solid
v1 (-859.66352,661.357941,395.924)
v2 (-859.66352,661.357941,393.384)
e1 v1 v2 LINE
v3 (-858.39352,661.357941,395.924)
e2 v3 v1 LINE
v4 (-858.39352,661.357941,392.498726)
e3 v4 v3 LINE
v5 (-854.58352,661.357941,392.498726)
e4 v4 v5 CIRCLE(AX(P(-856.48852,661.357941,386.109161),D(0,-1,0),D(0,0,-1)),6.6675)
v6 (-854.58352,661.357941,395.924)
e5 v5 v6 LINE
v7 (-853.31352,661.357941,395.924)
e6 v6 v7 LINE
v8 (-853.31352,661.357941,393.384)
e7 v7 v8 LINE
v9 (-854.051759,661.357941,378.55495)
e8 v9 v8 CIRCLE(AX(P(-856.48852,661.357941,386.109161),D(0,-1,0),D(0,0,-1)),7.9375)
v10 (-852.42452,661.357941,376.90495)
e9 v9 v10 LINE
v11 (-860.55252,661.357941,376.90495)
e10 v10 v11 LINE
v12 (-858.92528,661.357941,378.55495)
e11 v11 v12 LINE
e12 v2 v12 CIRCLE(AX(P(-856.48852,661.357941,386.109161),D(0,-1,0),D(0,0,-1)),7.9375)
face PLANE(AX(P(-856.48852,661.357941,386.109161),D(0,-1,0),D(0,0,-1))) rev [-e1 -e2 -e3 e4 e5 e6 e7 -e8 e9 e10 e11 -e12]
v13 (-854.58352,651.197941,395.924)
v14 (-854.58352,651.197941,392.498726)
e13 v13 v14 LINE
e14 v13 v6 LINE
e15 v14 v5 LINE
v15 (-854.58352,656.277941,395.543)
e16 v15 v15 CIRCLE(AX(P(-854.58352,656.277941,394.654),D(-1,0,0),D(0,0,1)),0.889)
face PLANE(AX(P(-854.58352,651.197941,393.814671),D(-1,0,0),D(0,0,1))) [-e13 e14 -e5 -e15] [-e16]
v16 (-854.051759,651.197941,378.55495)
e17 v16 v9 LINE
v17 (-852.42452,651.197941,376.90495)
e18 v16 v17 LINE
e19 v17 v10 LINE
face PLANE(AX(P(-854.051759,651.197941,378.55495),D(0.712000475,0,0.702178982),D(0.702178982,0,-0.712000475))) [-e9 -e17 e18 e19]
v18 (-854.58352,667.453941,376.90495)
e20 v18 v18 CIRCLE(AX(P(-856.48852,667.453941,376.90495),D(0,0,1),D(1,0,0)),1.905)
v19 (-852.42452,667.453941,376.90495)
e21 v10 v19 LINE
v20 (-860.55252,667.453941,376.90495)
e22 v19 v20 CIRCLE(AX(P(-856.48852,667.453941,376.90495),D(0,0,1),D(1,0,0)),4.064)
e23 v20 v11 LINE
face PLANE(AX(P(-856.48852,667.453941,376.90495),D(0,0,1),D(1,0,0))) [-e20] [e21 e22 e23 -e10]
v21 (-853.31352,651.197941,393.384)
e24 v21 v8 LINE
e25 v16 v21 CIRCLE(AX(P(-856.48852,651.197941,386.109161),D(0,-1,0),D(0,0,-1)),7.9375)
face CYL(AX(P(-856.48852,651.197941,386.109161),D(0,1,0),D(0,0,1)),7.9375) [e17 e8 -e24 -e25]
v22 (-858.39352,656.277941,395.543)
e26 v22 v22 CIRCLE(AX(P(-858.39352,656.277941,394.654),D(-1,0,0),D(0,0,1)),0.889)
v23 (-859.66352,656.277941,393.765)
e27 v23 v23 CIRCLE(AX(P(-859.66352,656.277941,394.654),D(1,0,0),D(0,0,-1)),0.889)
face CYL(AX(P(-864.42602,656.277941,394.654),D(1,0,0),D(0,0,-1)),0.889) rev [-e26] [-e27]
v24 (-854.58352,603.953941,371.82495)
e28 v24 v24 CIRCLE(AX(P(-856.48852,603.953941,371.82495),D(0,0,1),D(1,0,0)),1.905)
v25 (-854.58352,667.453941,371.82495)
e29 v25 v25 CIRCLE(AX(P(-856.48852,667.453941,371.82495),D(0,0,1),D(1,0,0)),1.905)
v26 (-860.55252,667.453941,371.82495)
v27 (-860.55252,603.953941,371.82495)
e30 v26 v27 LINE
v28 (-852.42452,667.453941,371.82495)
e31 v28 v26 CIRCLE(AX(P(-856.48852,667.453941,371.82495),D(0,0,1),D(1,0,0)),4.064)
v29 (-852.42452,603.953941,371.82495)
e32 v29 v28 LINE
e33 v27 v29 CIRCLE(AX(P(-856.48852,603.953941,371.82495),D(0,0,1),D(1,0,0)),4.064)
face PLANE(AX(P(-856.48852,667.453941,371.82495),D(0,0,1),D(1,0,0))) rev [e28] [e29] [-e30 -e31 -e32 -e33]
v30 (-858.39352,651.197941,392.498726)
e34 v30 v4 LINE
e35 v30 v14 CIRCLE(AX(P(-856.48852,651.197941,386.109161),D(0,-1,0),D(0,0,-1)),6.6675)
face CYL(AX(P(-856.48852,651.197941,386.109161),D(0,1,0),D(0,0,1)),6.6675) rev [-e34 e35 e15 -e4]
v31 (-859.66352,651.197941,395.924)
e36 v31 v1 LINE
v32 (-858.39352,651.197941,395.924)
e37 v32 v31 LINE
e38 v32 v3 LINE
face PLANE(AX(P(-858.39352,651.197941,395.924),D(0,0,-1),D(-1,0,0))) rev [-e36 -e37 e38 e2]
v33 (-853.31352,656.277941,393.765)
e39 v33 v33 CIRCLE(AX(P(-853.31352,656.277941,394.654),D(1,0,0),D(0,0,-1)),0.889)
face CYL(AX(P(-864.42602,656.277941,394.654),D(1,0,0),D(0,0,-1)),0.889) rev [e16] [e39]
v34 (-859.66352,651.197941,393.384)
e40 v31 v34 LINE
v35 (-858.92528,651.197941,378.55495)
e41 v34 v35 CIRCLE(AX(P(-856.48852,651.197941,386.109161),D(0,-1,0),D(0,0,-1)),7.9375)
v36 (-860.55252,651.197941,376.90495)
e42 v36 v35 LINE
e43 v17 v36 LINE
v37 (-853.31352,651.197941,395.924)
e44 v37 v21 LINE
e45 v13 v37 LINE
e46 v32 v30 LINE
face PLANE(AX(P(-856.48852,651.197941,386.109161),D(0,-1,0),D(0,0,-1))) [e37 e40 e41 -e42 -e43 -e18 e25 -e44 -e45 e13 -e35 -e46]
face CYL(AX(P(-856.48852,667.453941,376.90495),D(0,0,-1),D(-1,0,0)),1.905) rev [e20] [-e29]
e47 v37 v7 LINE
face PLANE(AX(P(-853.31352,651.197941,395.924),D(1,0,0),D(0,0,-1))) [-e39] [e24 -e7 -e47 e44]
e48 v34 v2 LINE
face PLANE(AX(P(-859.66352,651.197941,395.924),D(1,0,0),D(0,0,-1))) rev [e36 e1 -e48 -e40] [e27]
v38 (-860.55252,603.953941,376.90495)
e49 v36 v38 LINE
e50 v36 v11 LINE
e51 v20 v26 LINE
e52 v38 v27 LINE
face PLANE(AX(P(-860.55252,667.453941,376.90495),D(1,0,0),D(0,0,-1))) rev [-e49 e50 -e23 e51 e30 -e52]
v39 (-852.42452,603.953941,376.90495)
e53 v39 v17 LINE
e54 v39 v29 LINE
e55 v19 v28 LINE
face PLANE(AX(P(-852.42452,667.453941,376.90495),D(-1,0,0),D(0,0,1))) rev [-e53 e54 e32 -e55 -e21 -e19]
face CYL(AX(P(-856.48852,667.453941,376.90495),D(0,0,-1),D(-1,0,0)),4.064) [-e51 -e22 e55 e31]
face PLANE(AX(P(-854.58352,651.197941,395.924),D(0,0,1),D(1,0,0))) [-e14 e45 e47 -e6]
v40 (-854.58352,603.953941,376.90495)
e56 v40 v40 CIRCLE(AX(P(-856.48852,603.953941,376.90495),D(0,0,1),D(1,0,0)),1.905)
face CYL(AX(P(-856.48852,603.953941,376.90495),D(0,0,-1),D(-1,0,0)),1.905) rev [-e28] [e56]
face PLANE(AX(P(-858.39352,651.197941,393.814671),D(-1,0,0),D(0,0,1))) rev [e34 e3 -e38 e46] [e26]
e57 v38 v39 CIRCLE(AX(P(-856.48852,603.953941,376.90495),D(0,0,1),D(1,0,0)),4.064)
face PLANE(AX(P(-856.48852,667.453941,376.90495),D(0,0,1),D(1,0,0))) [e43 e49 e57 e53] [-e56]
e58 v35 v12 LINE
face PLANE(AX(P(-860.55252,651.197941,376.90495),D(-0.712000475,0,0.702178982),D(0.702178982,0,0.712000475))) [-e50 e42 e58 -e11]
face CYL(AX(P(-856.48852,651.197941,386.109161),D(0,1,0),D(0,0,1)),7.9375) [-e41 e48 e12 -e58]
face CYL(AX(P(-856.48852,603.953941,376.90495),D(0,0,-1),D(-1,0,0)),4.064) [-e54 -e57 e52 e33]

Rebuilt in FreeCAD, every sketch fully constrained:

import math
import FreeCAD as App
import Part
import Sketcher
Q = App.Units.Quantity

doc = App.newDocument("Part")
body = doc.addObject("PartDesign::Body", "Body")

# Sketch on XY plane
sketch1 = doc.addObject("Sketcher::SketchObject", "Sketch")
body.addObject(sketch1)
sketch1.AttachmentSupport = (doc.XY_Plane, [""])
sketch1.MapMode = "FlatFace"
sketch1.AttachmentOffset = App.Placement(App.Vector(0, 0, 371.82495), App.Rotation())
sketch1.addGeometry([
    Part.LineSegment(App.Vector(-852.4, 604, 0), App.Vector(-852.4, 667.5, 0)),  # 0
    Part.ArcOfCircle(Part.Circle(App.Vector(-856.5, 667.5, 0), App.Vector(0, 0, 1), 4.1), math.radians(0), math.radians(180)),  # 1
    Part.LineSegment(App.Vector(-860.6, 667.5, 0), App.Vector(-860.6, 604, 0)),  # 2
    Part.ArcOfCircle(Part.Circle(App.Vector(-856.5, 604, 0), App.Vector(0, 0, 1), 4.1), math.radians(180), math.radians(360)),  # 3
    Part.Circle(App.Vector(-856.5, 604, 0), App.Vector(0, 0, 1), 1.9),  # 4
    Part.Circle(App.Vector(-856.5, 667.5, 0), App.Vector(0, 0, 1), 1.9),  # 5
], False)
sketch1.addConstraint([
    Sketcher.Constraint("Tangent", 0, 2, 1, 1),
    Sketcher.Constraint("Tangent", 1, 2, 2, 1),
    Sketcher.Constraint("Tangent", 2, 2, 3, 1),
    Sketcher.Constraint("Tangent", 3, 2, 0, 1),
    Sketcher.Constraint("Vertical", 0),
    Sketcher.Constraint("Vertical", 2),
    Sketcher.Constraint("Coincident", 4, 3, 3, 3),
    Sketcher.Constraint("Coincident", 5, 3, 1, 3),
    Sketcher.Constraint("Equal", 4, 5),
    Sketcher.Constraint("Diameter", 4, Q("0.15 in")),
    Sketcher.Constraint("Radius", 1, Q("0.16 in")),
    Sketcher.Constraint("DistanceY", 0, 1, 0, 2, Q("2.5 in")),
    Sketcher.Constraint("DistanceX", 1, 3, -1, 1, Q("856.48852 mm")),
    Sketcher.Constraint("DistanceY", -1, 1, 1, 3, Q("667.453941 mm")),
])
pad1 = doc.addObject("PartDesign::Pad", "Pad")
body.addObject(pad1)
pad1.Profile = sketch1
pad1.Length = Q("0.2 in")

# Sketch on XZ plane
sketch2 = doc.addObject("Sketcher::SketchObject", "Sketch001")
body.addObject(sketch2)
sketch2.AttachmentSupport = (doc.XZ_Plane, [""])
sketch2.MapMode = "FlatFace"
sketch2.AttachmentOffset = App.Placement(App.Vector(0, 0, -661.357941), App.Rotation())
sketch2.addGeometry([
    Part.LineSegment(App.Vector(-852.4, 376.9, 0), App.Vector(-854.1, 378.6, 0)),  # 0
    Part.ArcOfCircle(Part.Circle(App.Vector(-856.5, 386.1, 0), App.Vector(0, 0, 1), 7.9), math.radians(-72), math.radians(66)),  # 1
    Part.LineSegment(App.Vector(-853.3, 393.4, 0), App.Vector(-853.3, 395.9, 0)),  # 2
    Part.LineSegment(App.Vector(-853.3, 395.9, 0), App.Vector(-854.6, 395.9, 0)),  # 3
    Part.LineSegment(App.Vector(-854.6, 395.9, 0), App.Vector(-854.6, 392.5, 0)),  # 4
    Part.ArcOfCircle(Part.Circle(App.Vector(-856.5, 386.1, 0), App.Vector(0, 0, 1), 6.7), math.radians(107), math.radians(433)),  # 5
    Part.LineSegment(App.Vector(-858.4, 392.5, 0), App.Vector(-858.4, 395.9, 0)),  # 6
    Part.LineSegment(App.Vector(-858.4, 395.9, 0), App.Vector(-859.7, 395.9, 0)),  # 7
    Part.LineSegment(App.Vector(-859.7, 395.9, 0), App.Vector(-859.7, 393.4, 0)),  # 8
    Part.ArcOfCircle(Part.Circle(App.Vector(-856.5, 386.1, 0), App.Vector(0, 0, 1), 7.9), math.radians(114), math.radians(252)),  # 9
    Part.LineSegment(App.Vector(-858.9, 378.6, 0), App.Vector(-860.6, 376.9, 0)),  # 10
    Part.LineSegment(App.Vector(-860.6, 376.9, 0), App.Vector(-852.4, 376.9, 0)),  # 11
], False)
sketch2.addConstraint([
    Sketcher.Constraint("Coincident", 0, 2, 1, 1),
    Sketcher.Constraint("Coincident", 1, 2, 2, 1),
    Sketcher.Constraint("Coincident", 2, 2, 3, 1),
    Sketcher.Constraint("Coincident", 3, 2, 4, 1),
    Sketcher.Constraint("Coincident", 4, 2, 5, 2),
    Sketcher.Constraint("Coincident", 5, 1, 6, 1),
    Sketcher.Constraint("Coincident", 6, 2, 7, 1),
    Sketcher.Constraint("Coincident", 7, 2, 8, 1),
    Sketcher.Constraint("Coincident", 8, 2, 9, 1),
    Sketcher.Constraint("Coincident", 9, 2, 10, 1),
    Sketcher.Constraint("Coincident", 10, 2, 11, 1),
    Sketcher.Constraint("Coincident", 11, 2, 0, 1),
    Sketcher.Constraint("Vertical", 2),
    Sketcher.Constraint("Horizontal", 3),
    Sketcher.Constraint("Vertical", 4),
    Sketcher.Constraint("Vertical", 6),
    Sketcher.Constraint("Horizontal", 7),
    Sketcher.Constraint("Vertical", 8),
    Sketcher.Constraint("Horizontal", 11),
    Sketcher.Constraint("Coincident", 5, 3, 1, 3),
    Sketcher.Constraint("Coincident", 9, 3, 1, 3),
    Sketcher.Constraint("Equal", 1, 9),
    Sketcher.Constraint("Horizontal", 4, 2, 5, 1),
    Sketcher.Constraint("Horizontal", 3, 2, 6, 2),
    Sketcher.Constraint("Horizontal", 1, 2, 8, 2),
    Sketcher.Constraint("Horizontal", 0, 2, 9, 2),
    Sketcher.Constraint("Equal", 0, 10),
    Sketcher.Constraint("DistanceY", 2, 1, 2, 2, Q("0.1 in")),
    Sketcher.Constraint("Radius", 1, Q("0.3125 in")),
    Sketcher.Constraint("DistanceX", 3, 2, 3, 1, Q("0.05 in")),
    Sketcher.Constraint("DistanceX", 11, 1, 11, 2, Q("0.32 in")),
    Sketcher.Constraint("Radius", 5, Q("0.2625 in")),
    Sketcher.Constraint("DistanceX", 5, 1, 1, 2, Q("0.2 in")),
    Sketcher.Constraint("DistanceY", -1, 1, 1, 2, Q("393.384 mm")),
    Sketcher.Constraint("DistanceY", 10, 2, 9, 2, Q("1.65 mm")),
    Sketcher.Constraint("DistanceX", 1, 3, -1, 1, Q("856.48852 mm")),
    Sketcher.Constraint("DistanceX", 0, 2, -1, 1, Q("854.051759 mm")),
])
pad2 = doc.addObject("PartDesign::Pad", "Pad001")
body.addObject(pad2)
pad2.Profile = sketch2
pad2.Length = Q("0.4 in")

# Sketch on YZ plane
sketch3 = doc.addObject("Sketcher::SketchObject", "Sketch002")
body.addObject(sketch3)
sketch3.AttachmentSupport = (doc.YZ_Plane, [""])
sketch3.MapMode = "FlatFace"
sketch3.AttachmentOffset = App.Placement(App.Vector(0, 0, -853.31352), App.Rotation())
sketch3.addGeometry(Part.Circle(App.Vector(656.3, 394.7, 0), App.Vector(0, 0, 1), 0.9), False)
sketch3.addConstraint([
    Sketcher.Constraint("Diameter", 0, Q("0.07 in")),
    Sketcher.Constraint("DistanceY", -1, 1, 0, 3, Q("394.654 mm")),
    Sketcher.Constraint("DistanceX", -1, 1, 0, 3, Q("656.277941 mm")),
])
pocket1 = doc.addObject("PartDesign::Pocket", "Pocket")
body.addObject(pocket1)
pocket1.Profile = sketch3
pocket1.Type = "ThroughAll"

doc.recompute()
